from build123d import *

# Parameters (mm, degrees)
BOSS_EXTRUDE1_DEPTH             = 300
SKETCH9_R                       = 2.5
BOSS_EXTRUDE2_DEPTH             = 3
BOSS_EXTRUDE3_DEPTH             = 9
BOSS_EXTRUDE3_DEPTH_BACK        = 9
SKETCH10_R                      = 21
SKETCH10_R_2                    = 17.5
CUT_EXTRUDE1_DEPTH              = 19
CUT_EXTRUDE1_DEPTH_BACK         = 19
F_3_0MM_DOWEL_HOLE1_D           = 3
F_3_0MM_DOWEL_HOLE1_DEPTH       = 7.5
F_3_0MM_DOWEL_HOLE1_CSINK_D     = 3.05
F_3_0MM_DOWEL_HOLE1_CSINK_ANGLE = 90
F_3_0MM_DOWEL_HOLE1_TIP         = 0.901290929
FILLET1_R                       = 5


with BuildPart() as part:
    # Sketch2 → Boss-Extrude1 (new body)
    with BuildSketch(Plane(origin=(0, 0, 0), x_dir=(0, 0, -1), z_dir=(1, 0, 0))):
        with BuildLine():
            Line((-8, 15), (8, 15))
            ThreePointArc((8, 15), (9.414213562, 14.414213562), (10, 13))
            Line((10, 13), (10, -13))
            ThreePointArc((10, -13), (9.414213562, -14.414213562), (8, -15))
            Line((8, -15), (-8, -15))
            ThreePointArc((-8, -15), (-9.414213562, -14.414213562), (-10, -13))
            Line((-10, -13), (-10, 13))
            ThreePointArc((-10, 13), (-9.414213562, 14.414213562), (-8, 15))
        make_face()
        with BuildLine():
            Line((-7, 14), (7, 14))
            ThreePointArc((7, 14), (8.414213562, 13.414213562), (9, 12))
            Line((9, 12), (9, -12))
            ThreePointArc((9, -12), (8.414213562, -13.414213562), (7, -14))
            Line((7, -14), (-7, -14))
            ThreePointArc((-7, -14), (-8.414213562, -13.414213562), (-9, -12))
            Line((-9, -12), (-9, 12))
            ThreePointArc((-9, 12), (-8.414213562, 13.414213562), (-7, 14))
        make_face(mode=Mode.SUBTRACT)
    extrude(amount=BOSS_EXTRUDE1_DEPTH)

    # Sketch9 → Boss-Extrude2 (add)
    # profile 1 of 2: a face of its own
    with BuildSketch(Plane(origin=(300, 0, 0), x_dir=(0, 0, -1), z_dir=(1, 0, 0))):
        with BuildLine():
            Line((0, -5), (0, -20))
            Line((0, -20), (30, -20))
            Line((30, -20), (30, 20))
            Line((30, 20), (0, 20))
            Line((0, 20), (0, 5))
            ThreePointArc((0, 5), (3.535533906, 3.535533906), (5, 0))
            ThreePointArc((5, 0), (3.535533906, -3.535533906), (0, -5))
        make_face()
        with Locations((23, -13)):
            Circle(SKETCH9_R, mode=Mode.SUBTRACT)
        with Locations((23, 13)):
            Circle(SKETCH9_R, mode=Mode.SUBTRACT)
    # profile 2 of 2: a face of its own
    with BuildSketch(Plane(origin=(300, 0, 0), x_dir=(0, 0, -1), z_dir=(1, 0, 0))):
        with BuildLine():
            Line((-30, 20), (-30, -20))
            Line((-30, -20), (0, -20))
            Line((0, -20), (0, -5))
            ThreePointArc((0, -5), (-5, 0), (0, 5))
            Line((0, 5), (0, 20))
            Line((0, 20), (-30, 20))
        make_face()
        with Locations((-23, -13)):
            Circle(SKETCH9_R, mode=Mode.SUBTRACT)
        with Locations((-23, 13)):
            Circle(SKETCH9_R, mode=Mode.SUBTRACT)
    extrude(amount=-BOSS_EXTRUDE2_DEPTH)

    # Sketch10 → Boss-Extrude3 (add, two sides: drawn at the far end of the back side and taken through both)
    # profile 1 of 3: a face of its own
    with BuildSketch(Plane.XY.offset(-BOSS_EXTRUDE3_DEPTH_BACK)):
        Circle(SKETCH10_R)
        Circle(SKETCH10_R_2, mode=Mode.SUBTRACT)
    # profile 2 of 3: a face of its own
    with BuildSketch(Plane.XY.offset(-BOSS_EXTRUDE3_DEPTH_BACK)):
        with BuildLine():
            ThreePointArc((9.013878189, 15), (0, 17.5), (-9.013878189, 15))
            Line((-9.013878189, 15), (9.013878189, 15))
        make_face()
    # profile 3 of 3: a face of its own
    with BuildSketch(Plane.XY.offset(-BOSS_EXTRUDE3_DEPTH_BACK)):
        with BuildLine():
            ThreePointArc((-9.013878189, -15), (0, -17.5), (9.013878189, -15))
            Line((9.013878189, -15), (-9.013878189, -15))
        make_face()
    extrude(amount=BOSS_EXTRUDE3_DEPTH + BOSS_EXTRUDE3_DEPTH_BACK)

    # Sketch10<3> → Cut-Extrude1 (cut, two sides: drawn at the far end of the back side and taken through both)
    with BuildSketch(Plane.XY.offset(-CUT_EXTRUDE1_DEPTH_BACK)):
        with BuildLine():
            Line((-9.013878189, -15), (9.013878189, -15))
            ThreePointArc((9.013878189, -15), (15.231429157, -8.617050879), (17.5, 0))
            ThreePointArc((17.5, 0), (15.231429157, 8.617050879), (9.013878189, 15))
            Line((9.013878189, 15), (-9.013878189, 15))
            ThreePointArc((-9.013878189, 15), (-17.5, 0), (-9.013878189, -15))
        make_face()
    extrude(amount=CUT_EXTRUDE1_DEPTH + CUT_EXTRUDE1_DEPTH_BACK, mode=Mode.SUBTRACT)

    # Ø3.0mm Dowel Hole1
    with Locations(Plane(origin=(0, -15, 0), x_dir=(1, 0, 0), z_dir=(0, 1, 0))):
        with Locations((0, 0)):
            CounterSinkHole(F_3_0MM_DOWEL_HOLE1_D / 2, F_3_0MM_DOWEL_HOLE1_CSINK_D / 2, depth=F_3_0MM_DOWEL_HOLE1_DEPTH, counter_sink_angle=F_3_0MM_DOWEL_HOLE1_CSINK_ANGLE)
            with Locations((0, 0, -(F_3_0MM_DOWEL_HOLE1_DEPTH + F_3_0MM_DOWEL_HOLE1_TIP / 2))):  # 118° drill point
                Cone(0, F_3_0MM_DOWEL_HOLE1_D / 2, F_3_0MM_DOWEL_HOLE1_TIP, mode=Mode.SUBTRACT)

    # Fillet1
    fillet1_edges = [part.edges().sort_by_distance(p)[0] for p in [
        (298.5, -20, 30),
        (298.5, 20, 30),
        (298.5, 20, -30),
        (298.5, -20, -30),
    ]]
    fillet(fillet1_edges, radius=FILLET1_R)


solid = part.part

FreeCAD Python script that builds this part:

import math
import FreeCAD as App
import Part
import Sketcher

V = App.Vector
Q = App.Units.Quantity


def edges_at(feature, points):
    """Names of the edges that pass closest to the given points."""
    edges = feature.Shape.Edges
    near = lambda p: min(range(len(edges)), key=lambda i: edges[i].distToShape(Part.Vertex(*p))[0])
    return sorted({f"Edge{near(p) + 1}" for p in points})

doc = App.newDocument("Part")
params = doc.addObject("Spreadsheet::Sheet", "Params")
for row, (alias, value) in enumerate([
    ("sketch1_radius", "2 mm"),
    ("sketch1_width", "26 mm"),
    ("sketch1_width2", "24 mm"),
    ("sketch1_height", "16 mm"),
    ("sketch1_height2", "14 mm"),
    ("pad1_length", "300 mm"),
    ("sketch2_diameter", "5 mm"),
    ("sketch2_radius", "5 mm"),
    ("sketch2_width", "40 mm"),
    ("sketch2_height", "60 mm"),
    ("pad2_length", "3 mm"),
    ("sketch3_diameter", "42 mm"),
    ("sketch3_radius", "17.5 mm"),
    ("pad3_length", "9 mm"),
    ("pad3_length2", "9 mm"),
    ("sketch4_radius", "17.5 mm"),
    ("sketch5_diameter", "3 mm"),
    ("hole_diameter", "3 mm"),
    ("hole_depth", "7.5 mm"),
    ("hole_csink_diameter", "3.05 mm"),
    ("fillet_radius", "5 mm"),
], start=1):
    params.set(f"A{row}", alias)
    params.set(f"B{row}", "=" + value)
    params.setAlias(f"B{row}", alias)

body = doc.addObject("PartDesign::Body", "Body")

sketch1 = body.newObject("Sketcher::SketchObject", "Sketch")
sketch1.AttachmentSupport = (doc.getObject("YZ_Plane"), [""])
sketch1.MapMode = "FlatFace"
sketch1.addGeometry([
    Part.LineSegment(V(15, -8, 0), V(15, 8, 0)),
    Part.ArcOfCircle(Part.Circle(V(13, 8, 0), V(0, 0, 1), 2), math.radians(0), math.radians(90)),
    Part.LineSegment(V(13, 10, 0), V(-13, 10, 0)),
    Part.ArcOfCircle(Part.Circle(V(-13, 8, 0), V(0, 0, 1), 2), math.radians(90), math.radians(180)),
    Part.LineSegment(V(-15, 8, 0), V(-15, -8, 0)),
    Part.ArcOfCircle(Part.Circle(V(-13, -8, 0), V(0, 0, 1), 2), math.radians(-180), math.radians(-90)),
    Part.LineSegment(V(-13, -10, 0), V(13, -10, 0)),
    Part.ArcOfCircle(Part.Circle(V(13, -8, 0), V(0, 0, 1), 2), math.radians(-90), math.radians(0)),
    Part.LineSegment(V(14, 7, 0), V(14, -7, 0)),
    Part.ArcOfCircle(Part.Circle(V(12, -7, 0), V(0, 0, 1), 2), math.radians(-90), math.radians(0)),
    Part.LineSegment(V(12, -9, 0), V(-12, -9, 0)),
    Part.ArcOfCircle(Part.Circle(V(-12, -7, 0), V(0, 0, 1), 2), math.radians(-180), math.radians(-90)),
    Part.LineSegment(V(-14, -7, 0), V(-14, 7, 0)),
    Part.ArcOfCircle(Part.Circle(V(-12, 7, 0), V(0, 0, 1), 2), math.radians(90), math.radians(180)),
    Part.LineSegment(V(-12, 9, 0), V(12, 9, 0)),
    Part.ArcOfCircle(Part.Circle(V(12, 7, 0), V(0, 0, 1), 2), math.radians(0), math.radians(90)),
], False)
sketch1.addConstraint([
    Sketcher.Constraint("Tangent", 0, 2, 1, 1),
    Sketcher.Constraint("Tangent", 1, 2, 2, 1),
    Sketcher.Constraint("Tangent", 2, 2, 3, 1),
    Sketcher.Constraint("Tangent", 3, 2, 4, 1),
    Sketcher.Constraint("Tangent", 4, 2, 5, 1),
    Sketcher.Constraint("Tangent", 5, 2, 6, 1),
    Sketcher.Constraint("Tangent", 6, 2, 7, 1),
    Sketcher.Constraint("Tangent", 7, 2, 0, 1),
    Sketcher.Constraint("Tangent", 8, 2, 9, 2),
    Sketcher.Constraint("Tangent", 9, 1, 10, 1),
    Sketcher.Constraint("Tangent", 10, 2, 11, 2),
    Sketcher.Constraint("Tangent", 11, 1, 12, 1),
    Sketcher.Constraint("Tangent", 12, 2, 13, 2),
    Sketcher.Constraint("Tangent", 13, 1, 14, 1),
    Sketcher.Constraint("Tangent", 14, 2, 15, 2),
    Sketcher.Constraint("Tangent", 15, 1, 8, 1),
    Sketcher.Constraint("Vertical", 0),
    Sketcher.Constraint("Horizontal", 2),
    Sketcher.Constraint("Vertical", 4),
    Sketcher.Constraint("Horizontal", 6),
    Sketcher.Constraint("Vertical", 8),
    Sketcher.Constraint("Horizontal", 10),
    Sketcher.Constraint("Vertical", 12),
    Sketcher.Constraint("Horizontal", 14),
    Sketcher.Constraint("Equal", 1, 3),
    Sketcher.Constraint("Equal", 3, 5),
    Sketcher.Constraint("Equal", 5, 7),
    Sketcher.Constraint("Equal", 7, 9),
    Sketcher.Constraint("Equal", 9, 11),
    Sketcher.Constraint("Equal", 11, 13),
    Sketcher.Constraint("Equal", 13, 15),
    Sketcher.Constraint("Symmetric", 1, 3, 5, 3, -1, 1),
    Sketcher.Constraint("Symmetric", 9, 3, 13, 3, -1, 1),
    Sketcher.Constraint("Radius", 1, Q("2 mm")),
    Sketcher.Constraint("DistanceX", 2, 2, 2, 1, Q("26 mm")),
    Sketcher.Constraint("DistanceX", 10, 2, 10, 1, Q("24 mm")),
    Sketcher.Constraint("DistanceY", 0, 1, 0, 2, Q("16 mm")),
    Sketcher.Constraint("DistanceY", 8, 2, 8, 1, Q("14 mm")),
])
sketch1.setExpression("Constraints[33]", "Params.sketch1_radius")
sketch1.setExpression("Constraints[34]", "Params.sketch1_width")
sketch1.setExpression("Constraints[35]", "Params.sketch1_width2")
sketch1.setExpression("Constraints[36]", "Params.sketch1_height")
sketch1.setExpression("Constraints[37]", "Params.sketch1_height2")
pad1 = body.newObject("PartDesign::Pad", "Pad")
pad1.Profile = sketch1
pad1.setExpression("Length", "Params.pad1_length")

sketch2 = body.newObject("Sketcher::SketchObject", "Sketch001")
sketch2.AttachmentSupport = (doc.getObject("YZ_Plane"), [""])
sketch2.MapMode = "FlatFace"
sketch2.AttachmentOffset = App.Placement(V(0, 0, 300), App.Rotation())
sketch2.addGeometry([
    Part.LineSegment(V(-20, -30, 0), V(20, -30, 0)),
    Part.LineSegment(V(20, -30, 0), V(20, 30, 0)),
    Part.LineSegment(V(20, 30, 0), V(-20, 30, 0)),
    Part.LineSegment(V(-20, 30, 0), V(-20, -30, 0)),
    Part.ArcOfCircle(Part.Circle(V(0, 0, 0), V(0, 0, 1), 5), math.radians(180), math.radians(270)),
    Part.ArcOfCircle(Part.Circle(V(0, 0, 0), V(0, 0, 1), 5), math.radians(0), math.radians(180)),
    Part.ArcOfCircle(Part.Circle(V(0, 0, 0), V(0, 0, 1), 5), math.radians(-90), math.radians(0)),
    Part.Circle(V(-13, -23, 0), V(0, 0, 1), 2.5),
    Part.Circle(V(13, -23, 0), V(0, 0, 1), 2.5),
    Part.Circle(V(-13, 23, 0), V(0, 0, 1), 2.5),
    Part.Circle(V(13, 23, 0), V(0, 0, 1), 2.5),
], False)
sketch2.addConstraint([
    Sketcher.Constraint("Coincident", 0, 2, 1, 1),
    Sketcher.Constraint("Coincident", 1, 2, 2, 1),
    Sketcher.Constraint("Coincident", 2, 2, 3, 1),
    Sketcher.Constraint("Coincident", 3, 2, 0, 1),
    Sketcher.Constraint("Tangent", 4, 1, 5, 2),
    Sketcher.Constraint("Tangent", 5, 1, 6, 2),
    Sketcher.Constraint("Tangent", 6, 1, 4, 2),
    Sketcher.Constraint("Horizontal", 0),
    Sketcher.Constraint("Vertical", 1),
    Sketcher.Constraint("Horizontal", 2),
    Sketcher.Constraint("Vertical", 3),
    Sketcher.Constraint("Coincident", 4, 3, -1, 1),
    Sketcher.Constraint("Equal", 7, 8),
    Sketcher.Constraint("Equal", 8, 9),
    Sketcher.Constraint("Equal", 9, 10),
    Sketcher.Constraint("Symmetric", 8, 3, 9, 3, -1, 1),
    Sketcher.Constraint("Symmetric", 7, 3, 10, 3, -1, 1),
    Sketcher.Constraint("Symmetric", 0, 2, 2, 2, -1, 1),
    Sketcher.Constraint("Symmetric", 7, 3, 8, 3, -2),
    Sketcher.Constraint("PointOnObject", 4, 1, -1),
    Sketcher.Constraint("PointOnObject", 5, 1, -1),
    Sketcher.Constraint("PointOnObject", 6, 1, -2),
    Sketcher.Constraint("Diameter", 7, Q("5 mm")),
    Sketcher.Constraint("Radius", 4, Q("5 mm")),
    Sketcher.Constraint("DistanceX", 0, 1, 0, 2, Q("40 mm")),
    Sketcher.Constraint("DistanceY", 1, 1, 1, 2, Q("60 mm")),
    Sketcher.Constraint("DistanceX", 7, 3, -1, 1, Q("13 mm")),
    Sketcher.Constraint("DistanceY", 7, 3, -1, 1, Q("23 mm")),
])
sketch2.setExpression("Constraints[22]", "Params.sketch2_diameter")
sketch2.setExpression("Constraints[23]", "Params.sketch2_radius")
sketch2.setExpression("Constraints[24]", "Params.sketch2_width")
sketch2.setExpression("Constraints[25]", "Params.sketch2_height")
pad2 = body.newObject("PartDesign::Pad", "Pad001")
pad2.Profile = sketch2
pad2.setExpression("Length", "Params.pad2_length")
pad2.Reversed = True

sketch3 = body.newObject("Sketcher::SketchObject", "Sketch002")
sketch3.AttachmentSupport = (doc.getObject("XY_Plane"), [""])
sketch3.MapMode = "FlatFace"
sketch3.addGeometry([
    Part.Circle(V(0, 0, 0), V(0, 0, 1), 21),
    Part.ArcOfCircle(Part.Circle(V(0, 0, 0), V(0, 0, 1), 18), math.radians(-59), math.radians(59)),
    Part.LineSegment(V(9, -15, 0), V(-9, -15, 0)),
    Part.ArcOfCircle(Part.Circle(V(0, 0, 0), V(0, 0, 1), 18), math.radians(121), math.radians(239)),
    Part.LineSegment(V(-9, 15, 0), V(9, 15, 0)),
], False)
sketch3.addConstraint([
    Sketcher.Constraint("Coincident", 1, 1, 2, 1),
    Sketcher.Constraint("Coincident", 2, 2, 3, 2),
    Sketcher.Constraint("Coincident", 3, 1, 4, 1),
    Sketcher.Constraint("Coincident", 4, 2, 1, 2),
    Sketcher.Constraint("Horizontal", 2),
    Sketcher.Constraint("Horizontal", 4),
    Sketcher.Constraint("Coincident", 0, 3, -1, 1),
    Sketcher.Constraint("Coincident", 1, 3, -1, 1),
    Sketcher.Constraint("Coincident", 3, 3, -1, 1),
    Sketcher.Constraint("Equal", 1, 3),
    Sketcher.Constraint("Vertical", 2, 2, 3, 1),
    Sketcher.Constraint("Diameter", 0, Q("42 mm")),
    Sketcher.Constraint("Radius", 1, Q("17.5 mm")),
    Sketcher.Constraint("DistanceY", 1, 1, -1, 1, Q("15 mm")),
])
sketch3.setExpression("Constraints[11]", "Params.sketch3_diameter")
sketch3.setExpression("Constraints[12]", "Params.sketch3_radius")
pad3 = body.newObject("PartDesign::Pad", "Pad002")
pad3.Profile = sketch3
pad3.Type = "TwoLengths"
pad3.setExpression("Length", "Params.pad3_length")
pad3.setExpression("Length2", "Params.pad3_length2")

sketch4 = body.newObject("Sketcher::SketchObject", "Sketch003")
sketch4.AttachmentSupport = (doc.getObject("XY_Plane"), [""])
sketch4.MapMode = "FlatFace"
sketch4.addGeometry([
    Part.LineSegment(V(-9, -15, 0), V(9, -15, 0)),
    Part.ArcOfCircle(Part.Circle(V(0, 0, 0), V(0, 0, 1), 17), math.radians(-59), math.radians(0)),
    Part.ArcOfCircle(Part.Circle(V(0, 0, 0), V(0, 0, 1), 17), math.radians(0), math.radians(59)),
    Part.LineSegment(V(9, 15, 0), V(-9, 15, 0)),
    Part.ArcOfCircle(Part.Circle(V(0, 0, 0), V(0, 0, 1), 18), math.radians(121), math.radians(239)),
], False)
sketch4.addConstraint([
    Sketcher.Constraint("Coincident", 0, 2, 1, 1),
    Sketcher.Constraint("Tangent", 1, 2, 2, 1),
    Sketcher.Constraint("Coincident", 2, 2, 3, 1),
    Sketcher.Constraint("Coincident", 3, 2, 4, 1),
    Sketcher.Constraint("Coincident", 4, 2, 0, 1),
    Sketcher.Constraint("Horizontal", 0),
    Sketcher.Constraint("Horizontal", 3),
    Sketcher.Constraint("Coincident", 1, 3, -1, 1),
    Sketcher.Constraint("Coincident", 4, 3, -1, 1),
    Sketcher.Constraint("Equal", 1, 2),
    Sketcher.Constraint("Equal", 2, 4),
    Sketcher.Constraint("PointOnObject", 1, 2, -1),
    Sketcher.Constraint("Vertical", 0, 2, 2, 2),
    Sketcher.Constraint("Radius", 1, Q("17.5 mm")),
    Sketcher.Constraint("DistanceY", 0, 2, -1, 1, Q("15 mm")),
])
sketch4.setExpression("Constraints[13]", "Params.sketch4_radius")
pocket1 = body.newObject("PartDesign::Pocket", "Pocket")
pocket1.Profile = sketch4
pocket1.Type = "ThroughAll"
pocket1.Midplane = True

sketch5 = body.newObject("Sketcher::SketchObject", "Sketch004")
sketch5.AttachmentSupport = (doc.getObject("XZ_Plane"), [""])
sketch5.MapMode = "FlatFace"
sketch5.AttachmentOffset = App.Placement(V(0, 0, 15), App.Rotation())
sketch5.addGeometry(Part.Circle(V(0, 0, 0), V(0, 0, 1), 1.5), False)
sketch5.addConstraint([
    Sketcher.Constraint("Coincident", 0, 3, -1, 1),
    Sketcher.Constraint("Diameter", 0, Q("3 mm")),
])
sketch5.setExpression("Constraints[1]", "Params.sketch5_diameter")
doc.recompute()
hole = body.newObject("PartDesign::Hole", "Hole")
hole.Profile = sketch5
hole.ThreadType = "None"
hole.setExpression("Diameter", "Params.hole_diameter")
hole.DepthType = "Dimension"
hole.setExpression("Depth", "Params.hole_depth")
hole.DrillPoint = "Angled"
hole.DrillPointAngle = 118
hole.HoleCutType = "Countersink"
hole.setExpression("HoleCutDiameter", "Params.hole_csink_diameter")
hole.HoleCutCountersinkAngle = 90
hole.Reversed = True
doc.recompute()

fillet = body.newObject("PartDesign::Fillet", "Fillet")
fillet.Base = (hole, edges_at(hole, [
    (298.5, -20, 30),
    (298.5, 20, 30),
    (298.5, 20, -30),
    (298.5, -20, -30),
]))
fillet.setExpression("Radius", "Params.fillet_radius")

doc.recompute()
